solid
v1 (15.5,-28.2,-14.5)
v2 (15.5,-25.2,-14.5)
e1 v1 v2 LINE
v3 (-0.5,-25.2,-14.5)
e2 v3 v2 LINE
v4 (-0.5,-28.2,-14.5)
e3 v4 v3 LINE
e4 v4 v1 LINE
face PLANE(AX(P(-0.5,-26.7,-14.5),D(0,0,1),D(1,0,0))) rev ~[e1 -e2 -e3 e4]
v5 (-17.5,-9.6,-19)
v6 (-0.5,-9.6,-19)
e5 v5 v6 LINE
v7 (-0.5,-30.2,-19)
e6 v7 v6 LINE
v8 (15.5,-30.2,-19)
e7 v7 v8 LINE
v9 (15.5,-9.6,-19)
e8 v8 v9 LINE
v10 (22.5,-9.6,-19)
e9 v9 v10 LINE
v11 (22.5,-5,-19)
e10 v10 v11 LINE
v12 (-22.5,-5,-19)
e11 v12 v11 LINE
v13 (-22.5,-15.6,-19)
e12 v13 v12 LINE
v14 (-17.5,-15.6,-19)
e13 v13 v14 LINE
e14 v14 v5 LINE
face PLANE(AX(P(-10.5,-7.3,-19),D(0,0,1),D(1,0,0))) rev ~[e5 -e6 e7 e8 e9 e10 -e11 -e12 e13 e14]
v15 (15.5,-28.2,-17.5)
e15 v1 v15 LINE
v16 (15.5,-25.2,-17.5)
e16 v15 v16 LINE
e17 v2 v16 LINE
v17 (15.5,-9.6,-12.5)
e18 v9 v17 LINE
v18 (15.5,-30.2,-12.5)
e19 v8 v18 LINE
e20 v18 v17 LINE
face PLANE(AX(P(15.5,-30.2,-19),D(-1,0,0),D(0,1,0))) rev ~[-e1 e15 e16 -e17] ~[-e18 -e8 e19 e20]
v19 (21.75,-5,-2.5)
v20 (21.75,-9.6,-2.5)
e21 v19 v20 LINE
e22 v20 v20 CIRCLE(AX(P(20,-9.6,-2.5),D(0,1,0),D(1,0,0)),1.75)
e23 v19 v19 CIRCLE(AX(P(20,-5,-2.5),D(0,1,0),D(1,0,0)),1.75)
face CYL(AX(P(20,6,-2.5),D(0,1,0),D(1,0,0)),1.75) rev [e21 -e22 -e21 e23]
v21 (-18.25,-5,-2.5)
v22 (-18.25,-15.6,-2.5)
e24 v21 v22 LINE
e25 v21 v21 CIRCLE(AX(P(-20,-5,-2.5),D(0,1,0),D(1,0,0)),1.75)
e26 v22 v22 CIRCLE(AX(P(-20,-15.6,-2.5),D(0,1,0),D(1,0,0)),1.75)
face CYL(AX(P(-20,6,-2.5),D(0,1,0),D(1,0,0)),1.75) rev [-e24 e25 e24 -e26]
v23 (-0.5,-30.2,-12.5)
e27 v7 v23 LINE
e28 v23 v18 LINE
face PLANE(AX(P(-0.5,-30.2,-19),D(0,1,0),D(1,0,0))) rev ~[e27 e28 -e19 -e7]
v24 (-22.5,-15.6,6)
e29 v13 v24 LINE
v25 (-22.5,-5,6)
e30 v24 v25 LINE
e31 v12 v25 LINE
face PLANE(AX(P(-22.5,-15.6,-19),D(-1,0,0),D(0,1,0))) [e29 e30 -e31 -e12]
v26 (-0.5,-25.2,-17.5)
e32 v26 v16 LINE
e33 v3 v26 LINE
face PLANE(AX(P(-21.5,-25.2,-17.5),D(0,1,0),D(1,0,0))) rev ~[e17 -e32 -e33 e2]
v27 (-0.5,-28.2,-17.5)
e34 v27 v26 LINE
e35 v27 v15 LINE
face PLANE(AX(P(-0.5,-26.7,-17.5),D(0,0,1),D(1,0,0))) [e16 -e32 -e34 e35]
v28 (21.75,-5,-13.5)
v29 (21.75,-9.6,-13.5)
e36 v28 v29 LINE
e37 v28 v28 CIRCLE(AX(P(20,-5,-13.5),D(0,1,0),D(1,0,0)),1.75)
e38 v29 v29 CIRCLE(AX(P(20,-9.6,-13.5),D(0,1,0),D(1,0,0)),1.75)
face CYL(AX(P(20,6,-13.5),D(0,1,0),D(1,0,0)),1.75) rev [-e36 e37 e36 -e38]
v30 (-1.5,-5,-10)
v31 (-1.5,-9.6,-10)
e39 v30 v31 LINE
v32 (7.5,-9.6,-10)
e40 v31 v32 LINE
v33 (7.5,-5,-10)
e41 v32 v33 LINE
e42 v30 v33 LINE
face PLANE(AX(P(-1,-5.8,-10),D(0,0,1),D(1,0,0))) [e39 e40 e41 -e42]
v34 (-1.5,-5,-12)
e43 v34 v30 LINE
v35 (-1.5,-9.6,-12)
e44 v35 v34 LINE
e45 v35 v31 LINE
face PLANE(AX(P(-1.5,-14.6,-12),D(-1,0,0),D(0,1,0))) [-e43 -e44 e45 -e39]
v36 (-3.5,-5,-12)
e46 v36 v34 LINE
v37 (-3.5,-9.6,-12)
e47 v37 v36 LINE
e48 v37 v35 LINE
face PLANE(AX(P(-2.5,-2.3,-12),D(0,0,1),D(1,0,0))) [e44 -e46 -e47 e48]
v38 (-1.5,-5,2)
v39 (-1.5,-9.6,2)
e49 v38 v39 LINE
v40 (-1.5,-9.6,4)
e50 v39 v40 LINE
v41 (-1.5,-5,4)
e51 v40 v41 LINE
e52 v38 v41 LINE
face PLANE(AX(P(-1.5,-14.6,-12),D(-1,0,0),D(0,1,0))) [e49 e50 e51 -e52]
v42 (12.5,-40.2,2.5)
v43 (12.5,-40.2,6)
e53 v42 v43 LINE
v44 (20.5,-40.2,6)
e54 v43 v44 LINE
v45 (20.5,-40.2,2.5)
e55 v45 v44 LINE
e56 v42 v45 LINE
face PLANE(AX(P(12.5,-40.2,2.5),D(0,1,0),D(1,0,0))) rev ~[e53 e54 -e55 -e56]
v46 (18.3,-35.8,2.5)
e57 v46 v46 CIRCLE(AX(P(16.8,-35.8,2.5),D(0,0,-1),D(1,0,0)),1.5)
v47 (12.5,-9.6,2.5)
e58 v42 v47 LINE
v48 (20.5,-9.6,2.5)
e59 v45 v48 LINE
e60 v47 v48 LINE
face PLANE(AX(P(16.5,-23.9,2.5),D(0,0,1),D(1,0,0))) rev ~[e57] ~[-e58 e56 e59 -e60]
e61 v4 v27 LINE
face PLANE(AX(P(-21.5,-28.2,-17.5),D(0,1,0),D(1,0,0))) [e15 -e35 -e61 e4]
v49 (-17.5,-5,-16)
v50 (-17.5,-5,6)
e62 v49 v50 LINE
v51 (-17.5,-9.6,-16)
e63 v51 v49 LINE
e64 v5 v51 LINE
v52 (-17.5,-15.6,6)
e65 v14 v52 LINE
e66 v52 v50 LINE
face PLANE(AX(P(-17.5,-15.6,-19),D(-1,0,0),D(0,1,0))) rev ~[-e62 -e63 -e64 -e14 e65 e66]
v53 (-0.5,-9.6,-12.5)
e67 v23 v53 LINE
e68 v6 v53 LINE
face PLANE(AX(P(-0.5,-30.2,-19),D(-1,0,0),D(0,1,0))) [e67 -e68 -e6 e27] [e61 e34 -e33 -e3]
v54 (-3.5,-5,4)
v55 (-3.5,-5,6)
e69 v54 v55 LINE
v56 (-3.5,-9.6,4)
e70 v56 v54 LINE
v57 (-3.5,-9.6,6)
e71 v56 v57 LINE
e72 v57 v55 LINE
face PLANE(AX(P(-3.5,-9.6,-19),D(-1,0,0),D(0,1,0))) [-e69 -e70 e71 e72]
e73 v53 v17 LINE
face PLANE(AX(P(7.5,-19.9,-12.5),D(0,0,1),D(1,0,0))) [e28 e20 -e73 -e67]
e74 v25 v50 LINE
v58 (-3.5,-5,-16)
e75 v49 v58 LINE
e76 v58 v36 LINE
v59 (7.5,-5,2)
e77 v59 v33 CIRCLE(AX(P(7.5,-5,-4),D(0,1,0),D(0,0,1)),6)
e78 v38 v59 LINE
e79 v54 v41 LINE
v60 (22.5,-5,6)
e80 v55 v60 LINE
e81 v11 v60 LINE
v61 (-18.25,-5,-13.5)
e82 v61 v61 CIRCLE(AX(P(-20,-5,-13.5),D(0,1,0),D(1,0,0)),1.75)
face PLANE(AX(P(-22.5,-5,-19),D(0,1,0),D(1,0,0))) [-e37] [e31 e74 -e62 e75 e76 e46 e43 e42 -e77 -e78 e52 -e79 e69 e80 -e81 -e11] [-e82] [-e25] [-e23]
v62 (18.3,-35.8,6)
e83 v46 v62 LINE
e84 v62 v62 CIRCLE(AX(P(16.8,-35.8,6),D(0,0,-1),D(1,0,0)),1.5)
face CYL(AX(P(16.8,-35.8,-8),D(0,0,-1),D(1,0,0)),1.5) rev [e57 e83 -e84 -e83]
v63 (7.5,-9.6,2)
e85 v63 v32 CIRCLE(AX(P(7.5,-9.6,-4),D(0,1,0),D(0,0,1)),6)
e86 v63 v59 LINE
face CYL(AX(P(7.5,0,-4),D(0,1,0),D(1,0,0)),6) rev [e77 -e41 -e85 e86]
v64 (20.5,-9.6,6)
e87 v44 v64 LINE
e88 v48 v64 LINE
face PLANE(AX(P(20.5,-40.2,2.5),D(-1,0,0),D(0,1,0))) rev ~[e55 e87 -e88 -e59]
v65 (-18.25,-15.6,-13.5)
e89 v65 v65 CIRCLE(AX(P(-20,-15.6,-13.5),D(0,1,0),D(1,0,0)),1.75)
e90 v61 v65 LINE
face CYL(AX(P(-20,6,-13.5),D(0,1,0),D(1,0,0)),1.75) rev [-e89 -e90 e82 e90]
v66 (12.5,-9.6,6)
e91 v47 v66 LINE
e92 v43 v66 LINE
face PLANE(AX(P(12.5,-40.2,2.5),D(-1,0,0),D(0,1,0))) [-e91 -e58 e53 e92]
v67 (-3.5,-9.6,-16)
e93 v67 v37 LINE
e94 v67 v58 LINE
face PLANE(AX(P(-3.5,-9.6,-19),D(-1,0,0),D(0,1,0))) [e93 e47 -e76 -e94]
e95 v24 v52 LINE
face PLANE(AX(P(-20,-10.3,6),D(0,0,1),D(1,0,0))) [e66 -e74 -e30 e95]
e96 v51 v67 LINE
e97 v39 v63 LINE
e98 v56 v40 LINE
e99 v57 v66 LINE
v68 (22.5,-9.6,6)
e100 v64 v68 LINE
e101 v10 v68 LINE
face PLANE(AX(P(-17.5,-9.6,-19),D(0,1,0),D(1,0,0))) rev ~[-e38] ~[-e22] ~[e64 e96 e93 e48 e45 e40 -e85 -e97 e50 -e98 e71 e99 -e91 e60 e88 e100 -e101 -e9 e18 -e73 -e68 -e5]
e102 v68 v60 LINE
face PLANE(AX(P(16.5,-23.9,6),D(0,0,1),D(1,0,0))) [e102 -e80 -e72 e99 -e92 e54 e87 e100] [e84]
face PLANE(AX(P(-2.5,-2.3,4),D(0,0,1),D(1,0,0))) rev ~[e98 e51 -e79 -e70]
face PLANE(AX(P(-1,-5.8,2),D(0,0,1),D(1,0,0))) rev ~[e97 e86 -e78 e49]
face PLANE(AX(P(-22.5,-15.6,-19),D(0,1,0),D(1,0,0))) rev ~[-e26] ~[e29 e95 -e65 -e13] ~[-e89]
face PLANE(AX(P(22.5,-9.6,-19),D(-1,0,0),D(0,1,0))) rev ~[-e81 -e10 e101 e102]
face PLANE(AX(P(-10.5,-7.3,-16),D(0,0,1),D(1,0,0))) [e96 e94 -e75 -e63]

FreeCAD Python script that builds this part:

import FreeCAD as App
import Part
import Sketcher

V = App.Vector


def add_polygon(sketch, points):
    """Adds a closed chain of lines whose ends are joined by coincident constraints."""
    first, n = sketch.GeometryCount, len(points)
    for a, b in zip(points, points[1:] + points[:1]):
        sketch.addGeometry(Part.LineSegment(App.Vector(*a, 0), App.Vector(*b, 0)), False)
    for i in range(n):
        sketch.addConstraint(Sketcher.Constraint("Coincident", first + i, 2, first + (i + 1) % n, 1))

doc = App.newDocument("Part")
params = doc.addObject("Spreadsheet::Sheet", "Params")
for row, (alias, value) in enumerate([
    ("sketch1_diameter", "3.5 mm"),
    ("pad1_length", "44 mm"),
    ("sketch2_diameter", "12 mm"),
    ("pad2_length", "34 mm"),
    ("sketch3_width", "17 mm"),
    ("sketch3_height", "17.6 mm"),
    ("pad3_length", "12 mm"),
    ("sketch4_diameter", "3.5 mm"),
    ("pad4_length", "44 mm"),
    ("sketch5_width", "2 mm"),
    ("sketch5_height", "24.6 mm"),
    ("pad5_length", "16 mm"),
    ("sketch6_diameter", "3.5 mm"),
    ("pad6_length", "44 mm"),
    ("sketch7_diameter", "3.5 mm"),
    ("pad7_length", "21 mm"),
    ("sketch8_diameter", "3 mm"),
    ("pad8_length", "42 mm"),
    ("sketch9_width", "42 mm"),
    ("sketch9_height", "3 mm"),
    ("pad9_length", "3 mm"),
    ("sketch10_diameter", "3.5 mm"),
    ("pad10_length", "44 mm"),
    ("sketch11_width", "26 mm"),
    ("sketch11_height", "4.6 mm"),
    ("pad11_length", "25 mm"),
    ("sketch12_width", "14 mm"),
    ("sketch12_height", "4.6 mm"),
    ("pad12_length", "3 mm"),
    ("sketch13_width", "8 mm"),
    ("sketch13_height", "32.6 mm"),
    ("pad13_length", "3.5 mm"),
    ("sketch14_width", "16 mm"),
    ("sketch14_height", "20.6 mm"),
    ("pad14_length", "6.5 mm"),
    ("sketch15_width", "5 mm"),
    ("sketch15_height", "10.6 mm"),
    ("pad15_length", "25 mm"),
], start=1):
    params.set(f"A{row}", alias)
    params.set(f"B{row}", "=" + value)
    params.setAlias(f"B{row}", alias)

body = doc.addObject("PartDesign::Body", "Body")

# Sketch on XY plane
sketch1 = doc.addObject("Sketcher::SketchObject", "Sketch")
body.addObject(sketch1)
sketch1.AttachmentSupport = (doc.XY_Plane, [""])
sketch1.MapMode = "FlatFace"
sketch1.addGeometry(Part.Circle(V(0, 0, 0), V(0, 0, 1), 1.8), False)
sketch1.addConstraint([
    Sketcher.Constraint("Coincident", 0, 3, -1, 1),
    Sketcher.Constraint("Diameter", 0, 3.5),
])
sketch1.setExpression("Constraints[1]", "Params.sketch1_diameter")
pad1 = doc.addObject("PartDesign::Pad", "Pad")
body.addObject(pad1)
pad1.Profile = sketch1
pad1.setExpression("Length", "Params.pad1_length")
body2 = doc.addObject("PartDesign::Body", "Body001")
doc.recompute()

body.Placement = App.Placement(V(0, 0, 0), App.Rotation(V(1, 0, 0), 90))
boolean = doc.addObject("PartDesign::Boolean", "Boolean")
body2.addObject(boolean)
boolean.Type = "Fuse"
boolean.addObjects([body])
body3 = doc.addObject("PartDesign::Body", "Body002")
doc.recompute()

body2.Placement = App.Placement(V(-20, 6, -2.5), App.Rotation(V(0, 0, 1), 0))
boolean2 = doc.addObject("PartDesign::Boolean", "Boolean001")
body3.addObject(boolean2)
boolean2.Type = "Fuse"
boolean2.addObjects([body2])
body4 = doc.addObject("PartDesign::Body", "Body003")

# Sketch on XY plane
sketch2 = doc.addObject("Sketcher::SketchObject", "Sketch001")
body4.addObject(sketch2)
sketch2.AttachmentSupport = (doc.getObject("XY_Plane003"), [""])
sketch2.MapMode = "FlatFace"
sketch2.addGeometry(Part.Circle(V(0, 0, 0), V(0, 0, 1), 6), False)
sketch2.addConstraint([
    Sketcher.Constraint("Coincident", 0, 3, -1, 1),
    Sketcher.Constraint("Diameter", 0, 12.0),
])
sketch2.setExpression("Constraints[1]", "Params.sketch2_diameter")
pad2 = doc.addObject("PartDesign::Pad", "Pad001")
body4.addObject(pad2)
pad2.Profile = sketch2
pad2.setExpression("Length", "Params.pad2_length")
body5 = doc.addObject("PartDesign::Body", "Body004")
doc.recompute()

body4.Placement = App.Placement(V(0, 0, 0), App.Rotation(V(1, 0, 0), 90))
boolean3 = doc.addObject("PartDesign::Boolean", "Boolean002")
body5.addObject(boolean3)
boolean3.Type = "Fuse"
boolean3.addObjects([body4])
body6 = doc.addObject("PartDesign::Body", "Body005")
doc.recompute()

body5.Placement = App.Placement(V(7.5, 0, -4), App.Rotation(V(0, 0, 1), 0))
boolean4 = doc.addObject("PartDesign::Boolean", "Boolean003")
body6.addObject(boolean4)
boolean4.Type = "Fuse"
boolean4.addObjects([body5])
body7 = doc.addObject("PartDesign::Body", "Body006")

# Sketch on XY plane
sketch3 = doc.addObject("Sketcher::SketchObject", "Sketch002")
body7.addObject(sketch3)
sketch3.AttachmentSupport = (doc.getObject("XY_Plane006"), [""])
sketch3.MapMode = "FlatFace"
sketch3.AttachmentOffset = App.Placement(V(0, 0, -10), App.Rotation())
add_polygon(sketch3, [(-10, 3), (-10, -15), (8, -15), (8, 3)])  # lines 0-3
sketch3.addConstraint([
    Sketcher.Constraint("Vertical", 0),
    Sketcher.Constraint("Horizontal", 1),
    Sketcher.Constraint("Vertical", 2),
    Sketcher.Constraint("Horizontal", 3),
    Sketcher.Constraint("DistanceX", 1, 1, 1, 2, 17.0),
    Sketcher.Constraint("DistanceY", 0, 2, 0, 1, 17.6),
    Sketcher.Constraint("DistanceY", -1, 1, 2, 2, 3.0),
    Sketcher.Constraint("DistanceX", 0, 2, -1, 1, 9.5),
])
sketch3.setExpression("Constraints[8]", "Params.sketch3_width")
sketch3.setExpression("Constraints[9]", "Params.sketch3_height")
pad3 = doc.addObject("PartDesign::Pad", "Pad002")
body7.addObject(pad3)
pad3.Profile = sketch3
pad3.setExpression("Length", "Params.pad3_length")
body8 = doc.addObject("PartDesign::Body", "Body007")

# Sketch on XY plane
sketch4 = doc.addObject("Sketcher::SketchObject", "Sketch003")
body8.addObject(sketch4)
sketch4.AttachmentSupport = (doc.getObject("XY_Plane007"), [""])
sketch4.MapMode = "FlatFace"
sketch4.addGeometry(Part.Circle(V(0, 0, 0), V(0, 0, 1), 1.8), False)
sketch4.addConstraint([
    Sketcher.Constraint("Coincident", 0, 3, -1, 1),
    Sketcher.Constraint("Diameter", 0, 3.5),
])
sketch4.setExpression("Constraints[1]", "Params.sketch4_diameter")
pad4 = doc.addObject("PartDesign::Pad", "Pad003")
body8.addObject(pad4)
pad4.Profile = sketch4
pad4.setExpression("Length", "Params.pad4_length")
body9 = doc.addObject("PartDesign::Body", "Body008")
doc.recompute()

body8.Placement = App.Placement(V(0, 0, 0), App.Rotation(V(1, 0, 0), 90))
boolean5 = doc.addObject("PartDesign::Boolean", "Boolean004")
body9.addObject(boolean5)
boolean5.Type = "Fuse"
boolean5.addObjects([body8])
body10 = doc.addObject("PartDesign::Body", "Body009")
doc.recompute()

body9.Placement = App.Placement(V(20, 6, -13.5), App.Rotation(V(0, 0, 1), 0))
boolean6 = doc.addObject("PartDesign::Boolean", "Boolean005")
body10.addObject(boolean6)
boolean6.Type = "Fuse"
boolean6.addObjects([body9])
body11 = doc.addObject("PartDesign::Body", "Body010")

# Sketch on XY plane
sketch5 = doc.addObject("Sketcher::SketchObject", "Sketch004")
body11.addObject(sketch5)
sketch5.AttachmentSupport = (doc.getObject("XY_Plane010"), [""])
sketch5.MapMode = "FlatFace"
sketch5.AttachmentOffset = App.Placement(V(0, 0, -12), App.Rotation())
add_polygon(sketch5, [(-3.5, 10), (-3.5, -14.6), (-1.5, -14.6), (-1.5, 10)])  # lines 0-3
sketch5.addConstraint([
    Sketcher.Constraint("Vertical", 0),
    Sketcher.Constraint("Horizontal", 1),
    Sketcher.Constraint("Vertical", 2),
    Sketcher.Constraint("Horizontal", 3),
    Sketcher.Constraint("DistanceX", 1, 1, 1, 2, 2.0),
    Sketcher.Constraint("DistanceY", 0, 2, 0, 1, 24.6),
    Sketcher.Constraint("DistanceY", -1, 1, 2, 2, 10.0),
    Sketcher.Constraint("DistanceX", 0, 2, -1, 1, 3.5),
])
sketch5.setExpression("Constraints[8]", "Params.sketch5_width")
sketch5.setExpression("Constraints[9]", "Params.sketch5_height")
pad5 = doc.addObject("PartDesign::Pad", "Pad004")
body11.addObject(pad5)
pad5.Profile = sketch5
pad5.setExpression("Length", "Params.pad5_length")
body12 = doc.addObject("PartDesign::Body", "Body011")

# Sketch on XY plane
sketch6 = doc.addObject("Sketcher::SketchObject", "Sketch005")
body12.addObject(sketch6)
sketch6.AttachmentSupport = (doc.getObject("XY_Plane011"), [""])
sketch6.MapMode = "FlatFace"
sketch6.addGeometry(Part.Circle(V(0, 0, 0), V(0, 0, 1), 1.8), False)
sketch6.addConstraint([
    Sketcher.Constraint("Coincident", 0, 3, -1, 1),
    Sketcher.Constraint("Diameter", 0, 3.5),
])
sketch6.setExpression("Constraints[1]", "Params.sketch6_diameter")
pad6 = doc.addObject("PartDesign::Pad", "Pad005")
body12.addObject(pad6)
pad6.Profile = sketch6
pad6.setExpression("Length", "Params.pad6_length")
body13 = doc.addObject("PartDesign::Body", "Body012")
doc.recompute()

body12.Placement = App.Placement(V(0, 0, 0), App.Rotation(V(1, 0, 0), 90))
boolean7 = doc.addObject("PartDesign::Boolean", "Boolean006")
body13.addObject(boolean7)
boolean7.Type = "Fuse"
boolean7.addObjects([body12])
body14 = doc.addObject("PartDesign::Body", "Body013")
doc.recompute()

body13.Placement = App.Placement(V(-20, 6, -13.5), App.Rotation(V(0, 0, 1), 0))
boolean8 = doc.addObject("PartDesign::Boolean", "Boolean007")
body14.addObject(boolean8)
boolean8.Type = "Fuse"
boolean8.addObjects([body13])
body15 = doc.addObject("PartDesign::Body", "Body014")

# Sketch on XY plane
sketch7 = doc.addObject("Sketcher::SketchObject", "Sketch006")
body15.addObject(sketch7)
sketch7.AttachmentSupport = (doc.getObject("XY_Plane014"), [""])
sketch7.MapMode = "FlatFace"
sketch7.addGeometry(Part.Circle(V(0, 0, 0), V(0, 0, 1), 1.8), False)
sketch7.addConstraint([
    Sketcher.Constraint("Coincident", 0, 3, -1, 1),
    Sketcher.Constraint("Diameter", 0, 3.5),
])
sketch7.setExpression("Constraints[1]", "Params.sketch7_diameter")
pad7 = doc.addObject("PartDesign::Pad", "Pad006")
body15.addObject(pad7)
pad7.Profile = sketch7
pad7.setExpression("Length", "Params.pad7_length")
body16 = doc.addObject("PartDesign::Body", "Body015")
doc.recompute()

body15.Placement = App.Placement(V(0, 0, 0), App.Rotation(V(0, 1, 0), 90))
boolean9 = doc.addObject("PartDesign::Boolean", "Boolean008")
body16.addObject(boolean9)
boolean9.Type = "Fuse"
boolean9.addObjects([body15])
body17 = doc.addObject("PartDesign::Body", "Body016")
doc.recompute()

body16.Placement = App.Placement(V(-24, -10, 11), App.Rotation(V(0, 0, 1), 0))
boolean10 = doc.addObject("PartDesign::Boolean", "Boolean009")
body17.addObject(boolean10)
boolean10.Type = "Fuse"
boolean10.addObjects([body16])
body18 = doc.addObject("PartDesign::Body", "Body017")

# Sketch on XY plane
sketch8 = doc.addObject("Sketcher::SketchObject", "Sketch007")
body18.addObject(sketch8)
sketch8.AttachmentSupport = (doc.getObject("XY_Plane017"), [""])
sketch8.MapMode = "FlatFace"
sketch8.AttachmentOffset = App.Placement(V(0, 0, -8), App.Rotation())
sketch8.addGeometry(Part.Circle(V(16.8, -35.8, 0), V(0, 0, 1), 1.5), False)
sketch8.addConstraint([
    Sketcher.Constraint("Diameter", 0, 3.0),
    Sketcher.Constraint("DistanceX", -1, 1, 0, 3, 16.8),
    Sketcher.Constraint("DistanceY", 0, 3, -1, 1, 35.8),
])
sketch8.setExpression("Constraints[0]", "Params.sketch8_diameter")
pad8 = doc.addObject("PartDesign::Pad", "Pad007")
body18.addObject(pad8)
pad8.Profile = sketch8
pad8.setExpression("Length", "Params.pad8_length")
body19 = doc.addObject("PartDesign::Body", "Body018")

# Sketch on XY plane
sketch9 = doc.addObject("Sketcher::SketchObject", "Sketch008")
body19.addObject(sketch9)
sketch9.AttachmentSupport = (doc.getObject("XY_Plane018"), [""])
sketch9.MapMode = "FlatFace"
sketch9.AttachmentOffset = App.Placement(V(0, 0, -17.5), App.Rotation())
add_polygon(sketch9, [(-21.5, -25.2), (-21.5, -28.2), (20.5, -28.2), (20.5, -25.2)])  # lines 0-3
sketch9.addConstraint([
    Sketcher.Constraint("Vertical", 0),
    Sketcher.Constraint("Horizontal", 1),
    Sketcher.Constraint("Vertical", 2),
    Sketcher.Constraint("Horizontal", 3),
    Sketcher.Constraint("DistanceX", 1, 1, 1, 2, 42.0),
    Sketcher.Constraint("DistanceY", 0, 2, 0, 1, 3.0),
    Sketcher.Constraint("DistanceX", 0, 2, -1, 1, 21.5),
    Sketcher.Constraint("DistanceY", 0, 2, -1, 1, 28.2),
])
sketch9.setExpression("Constraints[8]", "Params.sketch9_width")
sketch9.setExpression("Constraints[9]", "Params.sketch9_height")
pad9 = doc.addObject("PartDesign::Pad", "Pad008")
body19.addObject(pad9)
pad9.Profile = sketch9
pad9.setExpression("Length", "Params.pad9_length")
body20 = doc.addObject("PartDesign::Body", "Body019")

# Sketch on XY plane
sketch10 = doc.addObject("Sketcher::SketchObject", "Sketch009")
body20.addObject(sketch10)
sketch10.AttachmentSupport = (doc.getObject("XY_Plane019"), [""])
sketch10.MapMode = "FlatFace"
sketch10.addGeometry(Part.Circle(V(0, 0, 0), V(0, 0, 1), 1.8), False)
sketch10.addConstraint([
    Sketcher.Constraint("Coincident", 0, 3, -1, 1),
    Sketcher.Constraint("Diameter", 0, 3.5),
])
sketch10.setExpression("Constraints[1]", "Params.sketch10_diameter")
pad10 = doc.addObject("PartDesign::Pad", "Pad009")
body20.addObject(pad10)
pad10.Profile = sketch10
pad10.setExpression("Length", "Params.pad10_length")
body21 = doc.addObject("PartDesign::Body", "Body020")
doc.recompute()

body20.Placement = App.Placement(V(0, 0, 0), App.Rotation(V(1, 0, 0), 90))
boolean11 = doc.addObject("PartDesign::Boolean", "Boolean010")
body21.addObject(boolean11)
boolean11.Type = "Fuse"
boolean11.addObjects([body20])
body22 = doc.addObject("PartDesign::Body", "Body021")
body22.AllowCompound = True
doc.recompute()

body21.Placement = App.Placement(V(20, 6, -2.5), App.Rotation(V(0, 0, 1), 0))
boolean12 = doc.addObject("PartDesign::Boolean", "Boolean011")
body22.addObject(boolean12)
boolean12.Type = "Fuse"
boolean12.addObjects([body21])
doc.recompute()

boolean13 = doc.addObject("PartDesign::Boolean", "Boolean012")
body22.addObject(boolean13)
boolean13.Type = "Fuse"
boolean13.addObjects([body3])
doc.recompute()

boolean14 = doc.addObject("PartDesign::Boolean", "Boolean013")
body22.addObject(boolean14)
boolean14.Type = "Fuse"
boolean14.addObjects([body6])
doc.recompute()

boolean15 = doc.addObject("PartDesign::Boolean", "Boolean014")
body22.addObject(boolean15)
boolean15.Type = "Fuse"
boolean15.addObjects([body7])
doc.recompute()

boolean16 = doc.addObject("PartDesign::Boolean", "Boolean015")
body22.addObject(boolean16)
boolean16.Type = "Fuse"
boolean16.addObjects([body10])
doc.recompute()

boolean17 = doc.addObject("PartDesign::Boolean", "Boolean016")
body22.addObject(boolean17)
boolean17.Type = "Fuse"
boolean17.addObjects([body11])
doc.recompute()

boolean18 = doc.addObject("PartDesign::Boolean", "Boolean017")
body22.addObject(boolean18)
boolean18.Type = "Fuse"
boolean18.addObjects([body14])
doc.recompute()

boolean19 = doc.addObject("PartDesign::Boolean", "Boolean018")
body22.addObject(boolean19)
boolean19.Type = "Fuse"
boolean19.addObjects([body17])
doc.recompute()

boolean20 = doc.addObject("PartDesign::Boolean", "Boolean019")
body22.addObject(boolean20)
boolean20.Type = "Fuse"
boolean20.addObjects([body18])
doc.recompute()

boolean21 = doc.addObject("PartDesign::Boolean", "Boolean020")
body22.addObject(boolean21)
boolean21.Type = "Fuse"
boolean21.addObjects([body19])
body23 = doc.addObject("PartDesign::Body", "Body022")

# Sketch on XY plane
sketch11 = doc.addObject("Sketcher::SketchObject", "Sketch010")
body23.addObject(sketch11)
sketch11.AttachmentSupport = (doc.getObject("XY_Plane022"), [""])
sketch11.MapMode = "FlatFace"
sketch11.AttachmentOffset = App.Placement(V(0, 0, -19), App.Rotation())
add_polygon(sketch11, [(-3.5, -5), (-3.5, -9.6), (22.5, -9.6), (22.5, -5)])  # lines 0-3
sketch11.addConstraint([
    Sketcher.Constraint("Vertical", 0),
    Sketcher.Constraint("Horizontal", 1),
    Sketcher.Constraint("Vertical", 2),
    Sketcher.Constraint("Horizontal", 3),
    Sketcher.Constraint("DistanceX", 1, 1, 1, 2, 26.0),
    Sketcher.Constraint("DistanceY", 0, 2, 0, 1, 4.6),
    Sketcher.Constraint("DistanceY", 2, 2, -1, 1, 5.0),
    Sketcher.Constraint("DistanceX", 0, 2, -1, 1, 3.5),
])
sketch11.setExpression("Constraints[8]", "Params.sketch11_width")
sketch11.setExpression("Constraints[9]", "Params.sketch11_height")
pad11 = doc.addObject("PartDesign::Pad", "Pad010")
body23.addObject(pad11)
pad11.Profile = sketch11
pad11.setExpression("Length", "Params.pad11_length")
body24 = doc.addObject("PartDesign::Body", "Body023")

# Sketch on XY plane
sketch12 = doc.addObject("Sketcher::SketchObject", "Sketch011")
body24.addObject(sketch12)
sketch12.AttachmentSupport = (doc.getObject("XY_Plane023"), [""])
sketch12.MapMode = "FlatFace"
sketch12.AttachmentOffset = App.Placement(V(0, 0, -19), App.Rotation())
add_polygon(sketch12, [(-17.5, -5), (-17.5, -9.6), (-3.5, -9.6), (-3.5, -5)])  # lines 0-3
sketch12.addConstraint([
    Sketcher.Constraint("Vertical", 0),
    Sketcher.Constraint("Horizontal", 1),
    Sketcher.Constraint("Vertical", 2),
    Sketcher.Constraint("Horizontal", 3),
    Sketcher.Constraint("DistanceX", 1, 1, 1, 2, 14.0),
    Sketcher.Constraint("DistanceY", 0, 2, 0, 1, 4.6),
    Sketcher.Constraint("DistanceY", 2, 2, -1, 1, 5.0),
    Sketcher.Constraint("DistanceX", 0, 2, -1, 1, 17.5),
])
sketch12.setExpression("Constraints[8]", "Params.sketch12_width")
sketch12.setExpression("Constraints[9]", "Params.sketch12_height")
pad12 = doc.addObject("PartDesign::Pad", "Pad011")
body24.addObject(pad12)
pad12.Profile = sketch12
pad12.setExpression("Length", "Params.pad12_length")
body25 = doc.addObject("PartDesign::Body", "Body024")

# Sketch on XY plane
sketch13 = doc.addObject("Sketcher::SketchObject", "Sketch012")
body25.addObject(sketch13)
sketch13.AttachmentSupport = (doc.getObject("XY_Plane024"), [""])
sketch13.MapMode = "FlatFace"
sketch13.AttachmentOffset = App.Placement(V(0, 0, 2.5), App.Rotation())
add_polygon(sketch13, [(12, -8), (12, -40), (20, -40), (20, -8)])  # lines 0-3
sketch13.addConstraint([
    Sketcher.Constraint("Vertical", 0),
    Sketcher.Constraint("Horizontal", 1),
    Sketcher.Constraint("Vertical", 2),
    Sketcher.Constraint("Horizontal", 3),
    Sketcher.Constraint("DistanceX", 1, 1, 1, 2, 8.0),
    Sketcher.Constraint("DistanceY", 0, 2, 0, 1, 32.6),
    Sketcher.Constraint("DistanceX", -1, 1, 0, 2, 12.5),
    Sketcher.Constraint("DistanceY", 0, 2, -1, 1, 40.2),
])
sketch13.setExpression("Constraints[8]", "Params.sketch13_width")
sketch13.setExpression("Constraints[9]", "Params.sketch13_height")
pad13 = doc.addObject("PartDesign::Pad", "Pad012")
body25.addObject(pad13)
pad13.Profile = sketch13
pad13.setExpression("Length", "Params.pad13_length")
body26 = doc.addObject("PartDesign::Body", "Body025")

# Sketch on XY plane
sketch14 = doc.addObject("Sketcher::SketchObject", "Sketch013")
body26.addObject(sketch14)
sketch14.AttachmentSupport = (doc.getObject("XY_Plane025"), [""])
sketch14.MapMode = "FlatFace"
sketch14.AttachmentOffset = App.Placement(V(0, 0, -19), App.Rotation())
add_polygon(sketch14, [(0, -10), (0, -30), (16, -30), (16, -10)])  # lines 0-3
sketch14.addConstraint([
    Sketcher.Constraint("Vertical", 0),
    Sketcher.Constraint("Horizontal", 1),
    Sketcher.Constraint("Vertical", 2),
    Sketcher.Constraint("Horizontal", 3),
    Sketcher.Constraint("DistanceX", 1, 1, 1, 2, 16.0),
    Sketcher.Constraint("DistanceY", 0, 2, 0, 1, 20.6),
    Sketcher.Constraint("DistanceX", 0, 2, -1, 1, 0.5),
    Sketcher.Constraint("DistanceY", 0, 2, -1, 1, 30.2),
])
sketch14.setExpression("Constraints[8]", "Params.sketch14_width")
sketch14.setExpression("Constraints[9]", "Params.sketch14_height")
pad14 = doc.addObject("PartDesign::Pad", "Pad013")
body26.addObject(pad14)
pad14.Profile = sketch14
pad14.setExpression("Length", "Params.pad14_length")
body27 = doc.addObject("PartDesign::Body", "Body026")
body27.AllowCompound = True

# Sketch on XY plane
sketch15 = doc.addObject("Sketcher::SketchObject", "Sketch014")
body27.addObject(sketch15)
sketch15.AttachmentSupport = (doc.getObject("XY_Plane026"), [""])
sketch15.MapMode = "FlatFace"
sketch15.AttachmentOffset = App.Placement(V(0, 0, -19), App.Rotation())
add_polygon(sketch15, [(-22, -5), (-22, -16), (-18, -16), (-18, -5)])  # lines 0-3
sketch15.addConstraint([
    Sketcher.Constraint("Vertical", 0),
    Sketcher.Constraint("Horizontal", 1),
    Sketcher.Constraint("Vertical", 2),
    Sketcher.Constraint("Horizontal", 3),
    Sketcher.Constraint("DistanceX", 1, 1, 1, 2, 5.0),
    Sketcher.Constraint("DistanceY", 0, 2, 0, 1, 10.6),
    Sketcher.Constraint("DistanceY", 2, 2, -1, 1, 5.0),
    Sketcher.Constraint("DistanceX", 0, 2, -1, 1, 22.5),
])
sketch15.setExpression("Constraints[8]", "Params.sketch15_width")
sketch15.setExpression("Constraints[9]", "Params.sketch15_height")
pad15 = doc.addObject("PartDesign::Pad", "Pad014")
body27.addObject(pad15)
pad15.Profile = sketch15
pad15.setExpression("Length", "Params.pad15_length")
doc.recompute()

boolean22 = doc.addObject("PartDesign::Boolean", "Boolean021")
body27.addObject(boolean22)
boolean22.Type = "Fuse"
boolean22.addObjects([body23])
doc.recompute()

boolean23 = doc.addObject("PartDesign::Boolean", "Boolean022")
body27.addObject(boolean23)
boolean23.Type = "Fuse"
boolean23.addObjects([body24])
doc.recompute()

boolean24 = doc.addObject("PartDesign::Boolean", "Boolean023")
body27.addObject(boolean24)
boolean24.Type = "Fuse"
boolean24.addObjects([body25])
doc.recompute()

boolean25 = doc.addObject("PartDesign::Boolean", "Boolean024")
body27.addObject(boolean25)
boolean25.Type = "Fuse"
boolean25.addObjects([body26])
doc.recompute()

boolean26 = doc.addObject("PartDesign::Boolean", "Boolean025")
body27.addObject(boolean26)
boolean26.Type = "Cut"
boolean26.addObjects([body22])

doc.recompute()
